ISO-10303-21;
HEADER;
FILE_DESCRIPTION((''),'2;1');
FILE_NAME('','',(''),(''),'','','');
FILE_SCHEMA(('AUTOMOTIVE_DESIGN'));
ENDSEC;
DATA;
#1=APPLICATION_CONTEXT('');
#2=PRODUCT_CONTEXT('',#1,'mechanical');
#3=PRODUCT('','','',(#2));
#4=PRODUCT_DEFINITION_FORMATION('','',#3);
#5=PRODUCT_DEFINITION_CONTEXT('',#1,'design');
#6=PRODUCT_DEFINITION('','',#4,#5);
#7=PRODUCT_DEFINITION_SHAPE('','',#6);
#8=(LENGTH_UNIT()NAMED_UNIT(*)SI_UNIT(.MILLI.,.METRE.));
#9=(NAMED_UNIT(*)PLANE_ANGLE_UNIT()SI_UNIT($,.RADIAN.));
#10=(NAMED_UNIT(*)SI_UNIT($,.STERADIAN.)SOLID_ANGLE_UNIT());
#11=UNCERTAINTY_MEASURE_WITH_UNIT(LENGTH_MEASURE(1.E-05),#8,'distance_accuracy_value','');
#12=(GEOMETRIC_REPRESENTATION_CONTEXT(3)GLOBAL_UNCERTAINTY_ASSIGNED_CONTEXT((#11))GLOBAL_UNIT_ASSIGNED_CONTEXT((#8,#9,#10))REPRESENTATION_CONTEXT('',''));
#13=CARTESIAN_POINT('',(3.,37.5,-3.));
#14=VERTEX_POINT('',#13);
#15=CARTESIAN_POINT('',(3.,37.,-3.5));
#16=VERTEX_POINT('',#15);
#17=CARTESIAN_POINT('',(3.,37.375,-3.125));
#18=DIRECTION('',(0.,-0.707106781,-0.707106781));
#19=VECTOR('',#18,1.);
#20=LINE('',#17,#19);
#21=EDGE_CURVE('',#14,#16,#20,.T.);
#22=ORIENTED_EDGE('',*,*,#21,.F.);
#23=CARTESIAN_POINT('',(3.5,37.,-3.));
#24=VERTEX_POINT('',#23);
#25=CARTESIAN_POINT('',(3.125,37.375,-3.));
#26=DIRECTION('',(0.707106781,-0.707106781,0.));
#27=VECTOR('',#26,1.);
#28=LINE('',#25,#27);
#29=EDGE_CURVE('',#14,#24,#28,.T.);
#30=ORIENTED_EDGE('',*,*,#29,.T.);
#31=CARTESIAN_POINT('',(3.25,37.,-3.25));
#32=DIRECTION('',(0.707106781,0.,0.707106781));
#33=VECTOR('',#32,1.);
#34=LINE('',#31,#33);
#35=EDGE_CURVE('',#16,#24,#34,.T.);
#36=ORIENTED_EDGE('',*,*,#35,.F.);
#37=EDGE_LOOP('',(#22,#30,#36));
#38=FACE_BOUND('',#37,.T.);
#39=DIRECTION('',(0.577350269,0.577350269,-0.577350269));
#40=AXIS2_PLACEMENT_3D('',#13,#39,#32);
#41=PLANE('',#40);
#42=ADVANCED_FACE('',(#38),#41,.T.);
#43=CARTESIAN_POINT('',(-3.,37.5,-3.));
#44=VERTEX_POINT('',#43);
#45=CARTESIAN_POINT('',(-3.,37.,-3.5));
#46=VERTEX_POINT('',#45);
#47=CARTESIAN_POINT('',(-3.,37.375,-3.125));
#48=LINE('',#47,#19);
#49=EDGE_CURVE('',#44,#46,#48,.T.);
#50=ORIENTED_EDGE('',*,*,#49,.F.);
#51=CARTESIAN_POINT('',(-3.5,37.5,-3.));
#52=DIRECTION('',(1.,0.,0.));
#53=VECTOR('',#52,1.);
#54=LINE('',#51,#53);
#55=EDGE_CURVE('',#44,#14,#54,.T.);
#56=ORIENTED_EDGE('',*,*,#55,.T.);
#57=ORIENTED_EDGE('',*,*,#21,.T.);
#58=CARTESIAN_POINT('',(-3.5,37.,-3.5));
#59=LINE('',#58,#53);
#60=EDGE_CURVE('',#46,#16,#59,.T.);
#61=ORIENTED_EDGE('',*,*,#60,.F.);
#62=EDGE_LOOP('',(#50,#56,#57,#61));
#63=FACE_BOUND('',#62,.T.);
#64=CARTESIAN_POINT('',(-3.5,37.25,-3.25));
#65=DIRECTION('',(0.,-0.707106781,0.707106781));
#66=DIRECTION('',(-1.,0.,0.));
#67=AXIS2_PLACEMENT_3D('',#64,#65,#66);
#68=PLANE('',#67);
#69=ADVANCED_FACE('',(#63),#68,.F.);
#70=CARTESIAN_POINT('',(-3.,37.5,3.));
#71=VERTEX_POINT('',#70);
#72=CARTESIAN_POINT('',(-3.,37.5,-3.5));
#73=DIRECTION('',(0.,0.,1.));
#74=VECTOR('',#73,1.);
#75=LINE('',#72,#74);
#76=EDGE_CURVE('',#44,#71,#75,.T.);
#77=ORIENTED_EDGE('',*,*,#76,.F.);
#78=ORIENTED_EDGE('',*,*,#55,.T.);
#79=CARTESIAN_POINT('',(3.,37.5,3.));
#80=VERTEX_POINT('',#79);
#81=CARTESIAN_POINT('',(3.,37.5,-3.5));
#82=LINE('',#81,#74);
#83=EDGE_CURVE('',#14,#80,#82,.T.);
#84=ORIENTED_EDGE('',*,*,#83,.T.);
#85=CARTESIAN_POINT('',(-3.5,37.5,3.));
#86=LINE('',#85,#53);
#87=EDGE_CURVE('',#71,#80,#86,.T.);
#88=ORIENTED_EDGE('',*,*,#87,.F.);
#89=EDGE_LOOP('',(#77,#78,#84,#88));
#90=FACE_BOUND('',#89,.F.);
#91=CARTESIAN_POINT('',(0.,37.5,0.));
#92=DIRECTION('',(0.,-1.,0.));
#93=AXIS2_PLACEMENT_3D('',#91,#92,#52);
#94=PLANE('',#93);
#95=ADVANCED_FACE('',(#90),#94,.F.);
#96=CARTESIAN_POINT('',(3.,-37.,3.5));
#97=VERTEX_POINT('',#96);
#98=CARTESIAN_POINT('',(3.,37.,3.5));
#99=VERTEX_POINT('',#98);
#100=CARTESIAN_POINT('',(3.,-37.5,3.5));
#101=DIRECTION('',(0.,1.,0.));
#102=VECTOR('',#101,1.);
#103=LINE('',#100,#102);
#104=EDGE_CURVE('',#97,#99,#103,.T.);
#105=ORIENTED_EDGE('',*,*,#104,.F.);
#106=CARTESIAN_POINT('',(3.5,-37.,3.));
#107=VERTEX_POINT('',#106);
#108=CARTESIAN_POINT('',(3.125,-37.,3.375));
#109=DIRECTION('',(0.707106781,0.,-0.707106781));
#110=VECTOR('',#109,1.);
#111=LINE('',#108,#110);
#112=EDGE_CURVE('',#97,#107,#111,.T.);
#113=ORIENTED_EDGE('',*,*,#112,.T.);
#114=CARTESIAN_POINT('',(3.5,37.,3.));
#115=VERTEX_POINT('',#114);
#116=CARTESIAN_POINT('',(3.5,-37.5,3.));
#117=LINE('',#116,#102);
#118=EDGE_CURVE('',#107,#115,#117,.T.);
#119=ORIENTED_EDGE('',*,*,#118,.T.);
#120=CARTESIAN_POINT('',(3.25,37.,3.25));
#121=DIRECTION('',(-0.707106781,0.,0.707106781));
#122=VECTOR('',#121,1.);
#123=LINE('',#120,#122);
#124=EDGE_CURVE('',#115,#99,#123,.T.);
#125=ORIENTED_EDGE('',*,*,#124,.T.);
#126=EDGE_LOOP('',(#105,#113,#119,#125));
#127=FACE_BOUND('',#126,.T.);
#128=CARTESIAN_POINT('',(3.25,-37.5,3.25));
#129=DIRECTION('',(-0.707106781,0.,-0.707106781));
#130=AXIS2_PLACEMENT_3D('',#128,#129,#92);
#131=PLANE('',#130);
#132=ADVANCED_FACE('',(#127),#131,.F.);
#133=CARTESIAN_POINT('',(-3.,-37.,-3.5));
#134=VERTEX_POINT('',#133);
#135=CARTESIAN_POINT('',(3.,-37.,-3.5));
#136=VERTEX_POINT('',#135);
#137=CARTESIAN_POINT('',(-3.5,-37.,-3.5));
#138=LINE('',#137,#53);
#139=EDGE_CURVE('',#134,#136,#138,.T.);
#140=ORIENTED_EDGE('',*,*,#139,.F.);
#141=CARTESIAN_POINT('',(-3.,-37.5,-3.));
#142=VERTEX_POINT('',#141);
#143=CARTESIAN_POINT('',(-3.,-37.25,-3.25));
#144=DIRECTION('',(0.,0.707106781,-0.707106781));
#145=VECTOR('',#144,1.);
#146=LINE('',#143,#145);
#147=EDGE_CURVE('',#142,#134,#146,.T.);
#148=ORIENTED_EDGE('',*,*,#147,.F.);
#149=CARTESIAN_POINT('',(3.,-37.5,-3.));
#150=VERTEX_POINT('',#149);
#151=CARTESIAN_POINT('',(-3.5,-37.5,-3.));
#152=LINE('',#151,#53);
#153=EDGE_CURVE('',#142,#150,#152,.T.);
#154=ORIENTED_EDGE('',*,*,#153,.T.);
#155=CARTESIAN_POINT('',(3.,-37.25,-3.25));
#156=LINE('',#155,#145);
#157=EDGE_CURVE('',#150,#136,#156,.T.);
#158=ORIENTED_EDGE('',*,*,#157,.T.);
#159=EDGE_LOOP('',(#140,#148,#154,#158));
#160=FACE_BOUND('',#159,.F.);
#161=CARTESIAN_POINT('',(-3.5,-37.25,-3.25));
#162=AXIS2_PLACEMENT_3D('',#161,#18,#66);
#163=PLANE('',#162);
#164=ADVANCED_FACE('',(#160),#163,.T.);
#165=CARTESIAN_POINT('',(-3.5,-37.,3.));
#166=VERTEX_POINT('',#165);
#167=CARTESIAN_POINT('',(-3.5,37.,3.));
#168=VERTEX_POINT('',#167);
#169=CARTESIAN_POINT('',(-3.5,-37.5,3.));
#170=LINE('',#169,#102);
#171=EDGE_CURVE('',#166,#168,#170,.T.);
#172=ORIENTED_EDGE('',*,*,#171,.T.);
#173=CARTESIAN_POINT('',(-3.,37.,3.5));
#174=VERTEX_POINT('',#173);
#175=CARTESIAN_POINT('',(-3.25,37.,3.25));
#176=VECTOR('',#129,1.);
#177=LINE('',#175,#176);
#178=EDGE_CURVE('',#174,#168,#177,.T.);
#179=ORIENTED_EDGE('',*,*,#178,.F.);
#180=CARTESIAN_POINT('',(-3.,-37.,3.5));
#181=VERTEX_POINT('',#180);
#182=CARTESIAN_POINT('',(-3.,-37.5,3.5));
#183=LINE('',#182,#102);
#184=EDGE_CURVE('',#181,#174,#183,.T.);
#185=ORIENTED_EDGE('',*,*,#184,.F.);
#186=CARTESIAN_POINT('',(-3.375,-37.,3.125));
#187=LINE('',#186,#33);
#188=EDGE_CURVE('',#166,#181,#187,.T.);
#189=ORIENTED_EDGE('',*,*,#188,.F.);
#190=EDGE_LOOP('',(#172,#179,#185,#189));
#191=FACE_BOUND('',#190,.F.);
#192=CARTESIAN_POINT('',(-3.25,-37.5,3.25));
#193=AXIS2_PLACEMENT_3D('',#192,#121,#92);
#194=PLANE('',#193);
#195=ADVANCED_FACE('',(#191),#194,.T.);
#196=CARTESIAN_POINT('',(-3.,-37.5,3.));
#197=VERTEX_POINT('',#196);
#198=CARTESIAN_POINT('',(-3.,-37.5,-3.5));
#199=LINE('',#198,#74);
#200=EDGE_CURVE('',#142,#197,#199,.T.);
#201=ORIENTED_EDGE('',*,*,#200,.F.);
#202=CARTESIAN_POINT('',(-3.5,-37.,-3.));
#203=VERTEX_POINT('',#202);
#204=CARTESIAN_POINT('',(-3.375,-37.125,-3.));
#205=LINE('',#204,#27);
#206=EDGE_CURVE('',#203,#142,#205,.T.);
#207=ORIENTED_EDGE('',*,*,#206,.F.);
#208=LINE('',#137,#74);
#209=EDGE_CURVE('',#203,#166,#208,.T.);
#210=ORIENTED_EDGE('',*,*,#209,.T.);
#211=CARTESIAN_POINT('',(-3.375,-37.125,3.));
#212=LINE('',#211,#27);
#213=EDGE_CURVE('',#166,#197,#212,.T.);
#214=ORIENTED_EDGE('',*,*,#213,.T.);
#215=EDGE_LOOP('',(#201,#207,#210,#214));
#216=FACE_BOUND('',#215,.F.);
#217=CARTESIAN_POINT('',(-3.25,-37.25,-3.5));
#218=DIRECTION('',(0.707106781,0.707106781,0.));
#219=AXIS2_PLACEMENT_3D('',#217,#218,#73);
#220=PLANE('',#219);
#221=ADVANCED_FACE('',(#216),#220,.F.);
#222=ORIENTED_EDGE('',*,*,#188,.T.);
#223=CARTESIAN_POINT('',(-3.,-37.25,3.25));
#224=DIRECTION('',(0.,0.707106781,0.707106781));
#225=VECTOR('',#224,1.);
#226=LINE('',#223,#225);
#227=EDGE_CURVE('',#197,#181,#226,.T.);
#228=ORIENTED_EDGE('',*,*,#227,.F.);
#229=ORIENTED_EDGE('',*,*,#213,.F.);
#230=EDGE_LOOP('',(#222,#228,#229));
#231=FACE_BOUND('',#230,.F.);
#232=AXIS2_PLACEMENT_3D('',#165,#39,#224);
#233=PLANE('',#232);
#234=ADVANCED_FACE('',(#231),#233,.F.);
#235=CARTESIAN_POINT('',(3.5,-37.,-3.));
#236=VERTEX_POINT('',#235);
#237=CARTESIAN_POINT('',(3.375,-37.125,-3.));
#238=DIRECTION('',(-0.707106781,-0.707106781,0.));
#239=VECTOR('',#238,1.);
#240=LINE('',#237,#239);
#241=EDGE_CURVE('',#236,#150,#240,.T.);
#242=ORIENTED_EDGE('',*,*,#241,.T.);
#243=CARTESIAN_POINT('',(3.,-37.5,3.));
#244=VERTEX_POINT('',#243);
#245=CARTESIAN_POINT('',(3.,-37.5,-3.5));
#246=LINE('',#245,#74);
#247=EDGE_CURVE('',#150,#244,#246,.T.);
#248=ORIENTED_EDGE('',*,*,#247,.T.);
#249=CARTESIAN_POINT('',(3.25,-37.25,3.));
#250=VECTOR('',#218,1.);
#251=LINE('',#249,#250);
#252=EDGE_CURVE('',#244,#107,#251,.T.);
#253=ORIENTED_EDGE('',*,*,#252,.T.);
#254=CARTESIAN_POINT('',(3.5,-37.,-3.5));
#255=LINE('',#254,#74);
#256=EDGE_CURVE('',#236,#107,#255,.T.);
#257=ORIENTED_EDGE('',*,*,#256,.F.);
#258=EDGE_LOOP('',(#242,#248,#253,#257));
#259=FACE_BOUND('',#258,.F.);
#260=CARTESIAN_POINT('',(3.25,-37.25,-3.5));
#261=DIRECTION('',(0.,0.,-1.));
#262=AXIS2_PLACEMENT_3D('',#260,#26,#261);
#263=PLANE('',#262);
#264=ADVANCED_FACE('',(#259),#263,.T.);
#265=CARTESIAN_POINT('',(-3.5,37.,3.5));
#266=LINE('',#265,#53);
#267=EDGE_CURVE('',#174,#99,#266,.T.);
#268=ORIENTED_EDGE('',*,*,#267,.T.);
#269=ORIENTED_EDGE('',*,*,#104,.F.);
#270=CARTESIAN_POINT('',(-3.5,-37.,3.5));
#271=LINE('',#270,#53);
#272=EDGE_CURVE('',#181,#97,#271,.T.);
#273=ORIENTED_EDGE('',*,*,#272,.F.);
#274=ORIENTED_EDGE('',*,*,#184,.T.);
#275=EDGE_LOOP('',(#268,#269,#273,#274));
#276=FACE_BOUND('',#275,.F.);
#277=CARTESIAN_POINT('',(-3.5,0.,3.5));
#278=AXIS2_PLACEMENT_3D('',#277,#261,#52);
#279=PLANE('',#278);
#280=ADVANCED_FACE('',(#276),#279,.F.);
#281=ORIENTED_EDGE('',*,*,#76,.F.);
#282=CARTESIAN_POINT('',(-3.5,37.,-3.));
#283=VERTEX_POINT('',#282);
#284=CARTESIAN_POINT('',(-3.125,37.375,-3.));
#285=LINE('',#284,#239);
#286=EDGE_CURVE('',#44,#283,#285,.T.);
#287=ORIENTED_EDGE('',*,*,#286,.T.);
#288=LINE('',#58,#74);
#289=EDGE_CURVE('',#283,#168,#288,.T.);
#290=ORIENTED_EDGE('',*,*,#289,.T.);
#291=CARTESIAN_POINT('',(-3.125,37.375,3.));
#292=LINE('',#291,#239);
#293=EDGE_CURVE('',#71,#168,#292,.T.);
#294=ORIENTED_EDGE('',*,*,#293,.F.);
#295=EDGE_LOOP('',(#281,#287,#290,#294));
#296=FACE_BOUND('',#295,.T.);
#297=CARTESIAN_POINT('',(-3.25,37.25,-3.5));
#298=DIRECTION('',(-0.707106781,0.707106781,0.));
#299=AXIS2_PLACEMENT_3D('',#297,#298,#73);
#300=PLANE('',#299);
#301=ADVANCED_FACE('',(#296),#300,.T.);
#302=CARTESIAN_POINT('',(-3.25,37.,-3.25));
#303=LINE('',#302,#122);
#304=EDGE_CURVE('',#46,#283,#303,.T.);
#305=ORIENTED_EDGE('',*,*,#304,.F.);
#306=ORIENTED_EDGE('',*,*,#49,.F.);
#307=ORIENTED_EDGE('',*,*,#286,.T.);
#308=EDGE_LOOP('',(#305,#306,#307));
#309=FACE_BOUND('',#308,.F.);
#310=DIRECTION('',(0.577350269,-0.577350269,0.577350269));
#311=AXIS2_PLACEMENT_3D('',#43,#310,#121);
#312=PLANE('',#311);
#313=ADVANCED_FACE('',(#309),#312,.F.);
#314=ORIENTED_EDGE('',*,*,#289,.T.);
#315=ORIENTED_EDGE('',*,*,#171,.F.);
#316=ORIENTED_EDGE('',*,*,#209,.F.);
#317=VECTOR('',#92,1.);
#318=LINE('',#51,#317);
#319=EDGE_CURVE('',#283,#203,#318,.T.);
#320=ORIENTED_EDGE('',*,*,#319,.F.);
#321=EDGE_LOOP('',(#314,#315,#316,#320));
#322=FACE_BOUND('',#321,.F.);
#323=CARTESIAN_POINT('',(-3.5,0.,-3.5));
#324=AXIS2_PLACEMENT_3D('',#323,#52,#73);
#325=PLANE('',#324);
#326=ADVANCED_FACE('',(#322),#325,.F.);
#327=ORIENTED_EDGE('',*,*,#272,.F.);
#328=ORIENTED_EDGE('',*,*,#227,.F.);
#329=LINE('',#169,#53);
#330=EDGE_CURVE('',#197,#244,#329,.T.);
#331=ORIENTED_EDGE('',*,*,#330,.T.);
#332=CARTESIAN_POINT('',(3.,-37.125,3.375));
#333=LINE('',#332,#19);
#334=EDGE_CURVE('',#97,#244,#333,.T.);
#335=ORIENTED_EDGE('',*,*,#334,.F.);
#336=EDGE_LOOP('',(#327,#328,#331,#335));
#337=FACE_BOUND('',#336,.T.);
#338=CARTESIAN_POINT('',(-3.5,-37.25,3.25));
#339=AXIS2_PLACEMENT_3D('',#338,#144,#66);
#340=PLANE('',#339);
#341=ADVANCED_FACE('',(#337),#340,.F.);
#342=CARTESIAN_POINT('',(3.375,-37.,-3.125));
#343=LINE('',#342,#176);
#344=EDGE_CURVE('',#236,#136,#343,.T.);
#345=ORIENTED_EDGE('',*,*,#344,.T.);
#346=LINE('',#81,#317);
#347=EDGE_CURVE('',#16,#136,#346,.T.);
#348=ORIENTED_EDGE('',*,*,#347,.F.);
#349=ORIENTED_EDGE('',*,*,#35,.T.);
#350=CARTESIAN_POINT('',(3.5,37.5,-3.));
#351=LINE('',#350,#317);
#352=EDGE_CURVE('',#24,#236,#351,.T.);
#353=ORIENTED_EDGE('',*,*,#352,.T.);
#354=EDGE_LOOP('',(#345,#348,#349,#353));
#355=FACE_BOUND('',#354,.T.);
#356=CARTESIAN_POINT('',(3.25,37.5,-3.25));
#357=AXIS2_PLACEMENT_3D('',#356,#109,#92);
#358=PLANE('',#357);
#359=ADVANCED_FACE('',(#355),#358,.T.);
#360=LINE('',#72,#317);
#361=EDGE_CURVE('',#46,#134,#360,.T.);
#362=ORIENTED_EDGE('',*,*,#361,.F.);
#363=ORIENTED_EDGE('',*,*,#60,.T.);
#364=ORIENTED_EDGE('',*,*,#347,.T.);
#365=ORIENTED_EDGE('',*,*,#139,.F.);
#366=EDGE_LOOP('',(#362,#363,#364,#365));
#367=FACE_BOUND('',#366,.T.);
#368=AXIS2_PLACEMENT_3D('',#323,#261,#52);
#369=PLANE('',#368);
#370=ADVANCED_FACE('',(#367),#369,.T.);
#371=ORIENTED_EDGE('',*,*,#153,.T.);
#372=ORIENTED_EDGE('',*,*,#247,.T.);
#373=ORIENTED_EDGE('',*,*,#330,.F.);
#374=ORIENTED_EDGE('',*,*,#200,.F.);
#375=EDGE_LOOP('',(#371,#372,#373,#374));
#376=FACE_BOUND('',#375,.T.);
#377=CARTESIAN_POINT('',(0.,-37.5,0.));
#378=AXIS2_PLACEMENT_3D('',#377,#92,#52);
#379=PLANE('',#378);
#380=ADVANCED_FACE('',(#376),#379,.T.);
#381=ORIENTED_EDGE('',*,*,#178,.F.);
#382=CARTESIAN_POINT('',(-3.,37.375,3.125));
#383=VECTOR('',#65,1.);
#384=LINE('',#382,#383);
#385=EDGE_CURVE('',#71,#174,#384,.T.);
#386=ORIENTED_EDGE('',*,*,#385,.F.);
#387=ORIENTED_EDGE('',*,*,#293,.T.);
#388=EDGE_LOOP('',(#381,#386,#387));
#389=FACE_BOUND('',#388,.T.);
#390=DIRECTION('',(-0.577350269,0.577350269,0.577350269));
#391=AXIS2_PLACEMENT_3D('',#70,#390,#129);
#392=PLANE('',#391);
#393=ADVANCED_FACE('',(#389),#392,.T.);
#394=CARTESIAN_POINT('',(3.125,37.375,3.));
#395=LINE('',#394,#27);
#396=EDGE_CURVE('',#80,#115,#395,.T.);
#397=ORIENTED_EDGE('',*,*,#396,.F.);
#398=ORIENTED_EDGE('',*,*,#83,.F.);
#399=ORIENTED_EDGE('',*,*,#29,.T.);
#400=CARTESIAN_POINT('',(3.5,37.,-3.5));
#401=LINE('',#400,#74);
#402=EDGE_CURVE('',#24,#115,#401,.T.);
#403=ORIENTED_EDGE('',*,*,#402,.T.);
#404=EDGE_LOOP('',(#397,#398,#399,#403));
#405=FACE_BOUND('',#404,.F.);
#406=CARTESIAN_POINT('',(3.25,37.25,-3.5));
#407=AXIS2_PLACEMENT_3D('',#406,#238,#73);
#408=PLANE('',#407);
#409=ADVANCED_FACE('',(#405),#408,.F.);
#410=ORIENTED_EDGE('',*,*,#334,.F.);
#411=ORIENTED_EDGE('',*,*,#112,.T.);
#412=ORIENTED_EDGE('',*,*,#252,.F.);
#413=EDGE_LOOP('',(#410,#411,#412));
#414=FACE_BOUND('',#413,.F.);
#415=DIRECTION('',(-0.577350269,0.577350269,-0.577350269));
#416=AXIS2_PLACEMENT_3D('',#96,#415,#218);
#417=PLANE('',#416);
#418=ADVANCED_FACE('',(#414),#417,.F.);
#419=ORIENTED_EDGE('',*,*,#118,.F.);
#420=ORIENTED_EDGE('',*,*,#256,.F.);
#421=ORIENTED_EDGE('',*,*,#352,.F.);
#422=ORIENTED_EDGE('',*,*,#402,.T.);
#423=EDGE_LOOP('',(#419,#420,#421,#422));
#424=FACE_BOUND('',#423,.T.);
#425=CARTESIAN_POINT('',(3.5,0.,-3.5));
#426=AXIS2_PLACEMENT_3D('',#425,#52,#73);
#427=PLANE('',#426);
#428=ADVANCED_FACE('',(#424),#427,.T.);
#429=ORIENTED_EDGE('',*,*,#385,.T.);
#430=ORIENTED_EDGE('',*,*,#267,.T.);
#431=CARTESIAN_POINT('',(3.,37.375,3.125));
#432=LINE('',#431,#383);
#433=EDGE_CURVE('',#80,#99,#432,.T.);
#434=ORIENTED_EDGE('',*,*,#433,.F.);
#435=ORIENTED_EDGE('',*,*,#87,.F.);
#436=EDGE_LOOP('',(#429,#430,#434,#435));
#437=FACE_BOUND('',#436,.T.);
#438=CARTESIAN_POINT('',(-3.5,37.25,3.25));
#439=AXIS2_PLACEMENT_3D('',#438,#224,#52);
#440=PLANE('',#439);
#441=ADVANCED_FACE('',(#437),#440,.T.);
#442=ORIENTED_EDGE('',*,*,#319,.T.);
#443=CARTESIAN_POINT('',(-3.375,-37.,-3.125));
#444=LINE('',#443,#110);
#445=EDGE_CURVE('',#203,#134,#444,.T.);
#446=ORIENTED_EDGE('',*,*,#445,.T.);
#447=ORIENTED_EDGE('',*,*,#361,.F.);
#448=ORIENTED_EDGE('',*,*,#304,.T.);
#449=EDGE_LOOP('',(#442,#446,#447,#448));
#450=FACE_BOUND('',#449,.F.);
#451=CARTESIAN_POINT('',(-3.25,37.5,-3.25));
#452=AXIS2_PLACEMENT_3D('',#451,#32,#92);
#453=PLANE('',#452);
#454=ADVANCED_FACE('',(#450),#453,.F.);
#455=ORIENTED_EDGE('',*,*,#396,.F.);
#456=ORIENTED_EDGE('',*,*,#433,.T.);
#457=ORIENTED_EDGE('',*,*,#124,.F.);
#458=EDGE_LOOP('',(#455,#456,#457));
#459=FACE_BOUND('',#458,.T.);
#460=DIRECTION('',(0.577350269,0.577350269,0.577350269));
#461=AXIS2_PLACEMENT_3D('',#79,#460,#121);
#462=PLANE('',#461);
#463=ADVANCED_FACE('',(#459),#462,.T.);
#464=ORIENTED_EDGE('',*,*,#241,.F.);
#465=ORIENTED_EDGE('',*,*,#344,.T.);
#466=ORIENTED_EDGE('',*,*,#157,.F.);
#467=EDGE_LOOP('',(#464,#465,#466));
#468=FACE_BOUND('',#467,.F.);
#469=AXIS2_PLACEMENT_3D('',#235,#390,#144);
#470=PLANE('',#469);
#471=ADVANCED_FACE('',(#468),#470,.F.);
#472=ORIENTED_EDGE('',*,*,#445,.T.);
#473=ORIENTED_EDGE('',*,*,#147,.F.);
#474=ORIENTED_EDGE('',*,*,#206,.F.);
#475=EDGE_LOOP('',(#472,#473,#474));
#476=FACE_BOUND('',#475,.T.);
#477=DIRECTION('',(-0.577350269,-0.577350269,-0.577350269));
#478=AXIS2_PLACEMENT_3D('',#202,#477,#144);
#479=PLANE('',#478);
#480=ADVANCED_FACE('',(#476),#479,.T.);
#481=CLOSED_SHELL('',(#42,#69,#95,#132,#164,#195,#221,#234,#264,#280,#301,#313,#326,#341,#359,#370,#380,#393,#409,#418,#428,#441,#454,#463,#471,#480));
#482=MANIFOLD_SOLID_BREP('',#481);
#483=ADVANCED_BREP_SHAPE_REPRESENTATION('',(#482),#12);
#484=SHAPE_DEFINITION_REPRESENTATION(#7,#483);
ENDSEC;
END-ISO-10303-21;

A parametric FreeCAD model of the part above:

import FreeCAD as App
import Part
import Sketcher
Q = App.Units.Quantity


def add_polygon(sketch, points):
    """Adds a closed chain of lines whose ends are joined by coincident constraints."""
    first, n = sketch.GeometryCount, len(points)
    for a, b in zip(points, points[1:] + points[:1]):
        sketch.addGeometry(Part.LineSegment(App.Vector(*a, 0), App.Vector(*b, 0)), False)
    for i in range(n):
        sketch.addConstraint(Sketcher.Constraint("Coincident", first + i, 2, first + (i + 1) % n, 1))

doc = App.newDocument("Part")
params = doc.addObject("Spreadsheet::Sheet", "Params")
for row, (alias, value) in enumerate([
    ("sketch1_width", "7 mm"),
    ("pad1_length", "75 mm"),
    ("chamfer_size", "0.5 mm"),
], start=1):
    params.set(f"A{row}", alias)
    params.set(f"B{row}", "=" + value)
    params.setAlias(f"B{row}", alias)

body = doc.addObject("PartDesign::Body", "Body")

# Sketch on XZ plane
sketch1 = body.newObject("Sketcher::SketchObject", "Sketch")
sketch1.AttachmentSupport = (doc.getObject("XZ_Plane"), [""])
sketch1.MapMode = "FlatFace"
add_polygon(sketch1, [(-3.5, 3.5), (-3.5, -3.5), (3.5, -3.5), (3.5, 3.5)])  # lines 0-3
sketch1.addConstraint([
    Sketcher.Constraint("Vertical", 0),
    Sketcher.Constraint("Horizontal", 1),
    Sketcher.Constraint("Vertical", 2),
    Sketcher.Constraint("Horizontal", 3),
    Sketcher.Constraint("Symmetric", 0, 2, 2, 2, -1, 1),
    Sketcher.Constraint("Equal", 3, 0),
    Sketcher.Constraint("DistanceX", 1, 1, 1, 2, Q("7 mm")),
])
sketch1.setExpression("Constraints[10]", "Params.sketch1_width")
pad1 = body.newObject("PartDesign::Pad", "Pad")
pad1.Profile = sketch1
pad1.setExpression("Length", "Params.pad1_length")
pad1.Midplane = True
doc.recompute()

chamfer = body.newObject("PartDesign::Chamfer", "Chamfer")
chamfer.Base = (pad1, ["Edge1"])
chamfer.UseAllEdges = True
chamfer.setExpression("Size", "Params.chamfer_size")

doc.recompute()
